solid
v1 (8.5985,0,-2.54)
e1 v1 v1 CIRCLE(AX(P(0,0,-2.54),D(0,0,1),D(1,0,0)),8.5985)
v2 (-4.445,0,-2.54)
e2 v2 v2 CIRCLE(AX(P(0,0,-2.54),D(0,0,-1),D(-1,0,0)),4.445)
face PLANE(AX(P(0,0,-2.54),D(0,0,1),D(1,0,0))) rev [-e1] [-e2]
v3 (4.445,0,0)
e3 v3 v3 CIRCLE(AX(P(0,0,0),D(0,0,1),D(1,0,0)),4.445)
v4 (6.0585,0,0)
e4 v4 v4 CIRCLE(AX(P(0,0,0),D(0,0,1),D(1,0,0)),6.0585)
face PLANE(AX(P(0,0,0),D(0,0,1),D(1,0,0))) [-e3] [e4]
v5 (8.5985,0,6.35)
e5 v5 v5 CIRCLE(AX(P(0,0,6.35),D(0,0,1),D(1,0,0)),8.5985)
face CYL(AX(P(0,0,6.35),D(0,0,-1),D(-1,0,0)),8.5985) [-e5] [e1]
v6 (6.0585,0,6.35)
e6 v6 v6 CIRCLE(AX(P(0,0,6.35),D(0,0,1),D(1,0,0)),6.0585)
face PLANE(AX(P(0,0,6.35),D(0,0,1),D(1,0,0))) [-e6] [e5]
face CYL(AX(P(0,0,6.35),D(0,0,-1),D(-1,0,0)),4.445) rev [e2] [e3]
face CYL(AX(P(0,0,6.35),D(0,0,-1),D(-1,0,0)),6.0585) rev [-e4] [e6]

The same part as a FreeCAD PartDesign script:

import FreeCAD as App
import Part
import Sketcher
from FreeCAD import Vector
Q = App.Units.Quantity

doc = App.newDocument("Part")
params = doc.addObject("Spreadsheet::Sheet", "Params")
for row, (alias, value) in enumerate([
    ("pad1_length", "0.25 in"),
    ("pad2_length", "0.1 in"),
    ("sketch3_diameter", "0.35 in"),
], start=1):
    params.set(f"A{row}", alias)
    params.set(f"B{row}", "=" + value)
    params.setAlias(f"B{row}", alias)

body = doc.addObject("PartDesign::Body", "Body")

# Sketch on XY plane
sketch1 = body.newObject("Sketcher::SketchObject", "Sketch")
sketch1.AttachmentSupport = (doc.getObject("XY_Plane"), [""])
sketch1.MapMode = "FlatFace"
sketch1.addGeometry([
    Part.Circle(Vector(0, 0, 0), Vector(0, 0, 1), 9),
    Part.Circle(Vector(0, 0, 0), Vector(0, 0, 1), 6),
], False)
sketch1.addConstraint([
    Sketcher.Constraint("Coincident", 0, 3, -1, 1),
    Sketcher.Constraint("Coincident", 1, 3, -1, 1),
    Sketcher.Constraint("Diameter", 0, 17.197),
    Sketcher.Constraint("Diameter", 1, 12.117),
])
pad1 = body.newObject("PartDesign::Pad", "Pad")
pad1.Profile = sketch1
pad1.setExpression("Length", "Params.pad1_length")

# Sketch on XY plane
sketch2 = body.newObject("Sketcher::SketchObject", "Sketch001")
sketch2.AttachmentSupport = (doc.getObject("XY_Plane"), [""])
sketch2.MapMode = "FlatFace"
sketch2.addGeometry(Part.Circle(Vector(0, 0, 0), Vector(0, 0, 1), 9), False)
sketch2.addConstraint([
    Sketcher.Constraint("Coincident", 0, 3, -1, 1),
    Sketcher.Constraint("Diameter", 0, 17.197),
])
pad2 = body.newObject("PartDesign::Pad", "Pad001")
pad2.Profile = sketch2
pad2.setExpression("Length", "Params.pad2_length")
pad2.Reversed = True

# Sketch on XY plane
sketch3 = body.newObject("Sketcher::SketchObject", "Sketch002")
sketch3.AttachmentSupport = (doc.getObject("XY_Plane"), [""])
sketch3.MapMode = "FlatFace"
sketch3.AttachmentOffset = App.Placement(Vector(0, 0, -0.1 * 25.4), App.Rotation())
sketch3.addGeometry(Part.Circle(Vector(0, 0, 0), Vector(0, 0, 1), 4.4), False)
sketch3.addConstraint([
    Sketcher.Constraint("Coincident", 0, 3, -1, 1),
    Sketcher.Constraint("Diameter", 0, Q("0.35 in")),
])
sketch3.setExpression("Constraints[1]", "Params.sketch3_diameter")
pocket1 = body.newObject("PartDesign::Pocket", "Pocket")
pocket1.Profile = sketch3
pocket1.Type = "ThroughAll"
pocket1.Reversed = True

doc.recompute()
